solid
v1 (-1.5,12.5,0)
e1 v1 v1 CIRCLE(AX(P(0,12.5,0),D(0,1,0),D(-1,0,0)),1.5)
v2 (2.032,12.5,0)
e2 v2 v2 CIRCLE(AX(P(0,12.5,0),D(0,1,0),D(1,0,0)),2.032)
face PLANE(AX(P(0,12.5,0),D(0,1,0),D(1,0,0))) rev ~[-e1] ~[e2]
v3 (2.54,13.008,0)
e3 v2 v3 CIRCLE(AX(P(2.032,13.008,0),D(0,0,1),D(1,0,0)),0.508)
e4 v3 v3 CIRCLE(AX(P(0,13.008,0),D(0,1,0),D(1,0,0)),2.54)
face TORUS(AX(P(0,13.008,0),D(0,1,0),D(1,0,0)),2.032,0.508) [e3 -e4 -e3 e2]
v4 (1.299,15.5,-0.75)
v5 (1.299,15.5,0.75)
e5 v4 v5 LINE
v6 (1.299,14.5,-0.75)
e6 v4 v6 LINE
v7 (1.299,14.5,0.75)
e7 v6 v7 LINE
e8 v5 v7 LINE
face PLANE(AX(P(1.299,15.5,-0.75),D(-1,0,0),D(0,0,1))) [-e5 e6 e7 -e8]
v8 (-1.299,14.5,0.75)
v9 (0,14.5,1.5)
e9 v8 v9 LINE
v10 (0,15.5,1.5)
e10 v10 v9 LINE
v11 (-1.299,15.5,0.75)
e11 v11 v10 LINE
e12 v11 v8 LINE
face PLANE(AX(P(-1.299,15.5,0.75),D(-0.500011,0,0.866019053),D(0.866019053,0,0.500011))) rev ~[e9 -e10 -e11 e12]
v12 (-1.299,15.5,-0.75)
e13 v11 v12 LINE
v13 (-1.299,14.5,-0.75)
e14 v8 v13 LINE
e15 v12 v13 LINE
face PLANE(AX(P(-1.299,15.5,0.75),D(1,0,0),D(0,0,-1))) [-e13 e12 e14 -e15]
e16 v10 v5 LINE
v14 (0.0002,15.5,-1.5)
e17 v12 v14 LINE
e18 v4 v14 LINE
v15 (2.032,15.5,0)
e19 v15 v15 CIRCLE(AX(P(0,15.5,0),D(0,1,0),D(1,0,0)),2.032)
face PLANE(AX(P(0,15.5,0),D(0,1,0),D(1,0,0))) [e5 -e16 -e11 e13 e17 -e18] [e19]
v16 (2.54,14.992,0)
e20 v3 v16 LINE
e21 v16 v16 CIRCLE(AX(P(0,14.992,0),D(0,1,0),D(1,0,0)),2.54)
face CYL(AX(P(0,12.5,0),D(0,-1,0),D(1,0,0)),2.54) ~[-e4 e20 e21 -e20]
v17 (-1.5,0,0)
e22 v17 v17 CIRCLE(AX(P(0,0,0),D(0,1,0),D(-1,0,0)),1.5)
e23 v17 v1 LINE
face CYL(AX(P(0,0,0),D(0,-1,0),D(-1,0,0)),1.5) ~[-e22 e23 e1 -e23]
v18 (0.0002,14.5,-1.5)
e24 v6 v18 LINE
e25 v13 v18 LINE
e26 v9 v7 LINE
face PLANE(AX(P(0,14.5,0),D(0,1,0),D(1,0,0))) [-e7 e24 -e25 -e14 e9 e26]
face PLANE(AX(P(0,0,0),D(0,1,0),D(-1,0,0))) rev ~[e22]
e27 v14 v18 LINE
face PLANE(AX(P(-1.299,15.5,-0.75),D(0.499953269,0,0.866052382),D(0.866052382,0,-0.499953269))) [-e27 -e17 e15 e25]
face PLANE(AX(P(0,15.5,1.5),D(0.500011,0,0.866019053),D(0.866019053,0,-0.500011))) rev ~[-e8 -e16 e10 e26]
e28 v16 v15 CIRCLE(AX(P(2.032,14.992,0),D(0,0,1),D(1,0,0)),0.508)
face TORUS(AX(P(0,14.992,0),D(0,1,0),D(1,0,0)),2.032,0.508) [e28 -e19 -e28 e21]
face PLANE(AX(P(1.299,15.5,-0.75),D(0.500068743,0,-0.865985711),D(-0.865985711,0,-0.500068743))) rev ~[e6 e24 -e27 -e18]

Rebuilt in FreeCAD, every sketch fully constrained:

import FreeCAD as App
import Part
import Sketcher
from FreeCAD import Vector
Q = App.Units.Quantity


def edges_at(feature, points):
    """Names of the edges that pass closest to the given points."""
    edges = feature.Shape.Edges
    near = lambda p: min(range(len(edges)), key=lambda i: edges[i].distToShape(Part.Vertex(*p))[0])
    return sorted({f"Edge{near(p) + 1}" for p in points})

doc = App.newDocument("Part")
body = doc.addObject("PartDesign::Body", "Body")

sketch1 = doc.addObject("Sketcher::SketchObject", "Sketch")
body.addObject(sketch1)
sketch1.AttachmentSupport = (doc.XZ_Plane, [""])
sketch1.MapMode = "FlatFace"
sketch1.addGeometry(Part.Circle(Vector(0, 0, 0), Vector(0, 0, 1), 1.5), False)
sketch1.addConstraint([
    Sketcher.Constraint("Coincident", 0, 3, -1, 1),
    Sketcher.Constraint("Diameter", 0, Q("3 mm")),
])
pad1 = doc.addObject("PartDesign::Pad", "Pad")
body.addObject(pad1)
pad1.Profile = sketch1
pad1.Length = 12.5
pad1.Reversed = True

sketch2 = doc.addObject("Sketcher::SketchObject", "Sketch001")
body.addObject(sketch2)
sketch2.AttachmentSupport = (doc.XZ_Plane, [""])
sketch2.MapMode = "FlatFace"
sketch2.AttachmentOffset = App.Placement(Vector(0, 0, -12.5), App.Rotation())
sketch2.addGeometry(Part.Circle(Vector(0, 0, 0), Vector(0, 0, 1), 2.54), False)
sketch2.addConstraint([
    Sketcher.Constraint("Coincident", 0, 3, -1, 1),
    Sketcher.Constraint("Diameter", 0, Q("5.08 mm")),
])
pad2 = doc.addObject("PartDesign::Pad", "Pad001")
body.addObject(pad2)
pad2.Profile = sketch2
pad2.Length = 3
pad2.Reversed = True
doc.recompute()

fillet = doc.addObject("PartDesign::Fillet", "Fillet")
body.addObject(fillet)
fillet.Base = (pad2, edges_at(pad2, [(-2.54, 15.5, 0), (-2.54, 12.5, 0)]))
fillet.Radius = 0.508

sketch3 = doc.addObject("Sketcher::SketchObject", "Sketch002")
body.addObject(sketch3)
sketch3.AttachmentSupport = (doc.XZ_Plane, [""])
sketch3.MapMode = "FlatFace"
sketch3.AttachmentOffset = App.Placement(Vector(0, 0, -15.5), App.Rotation())
sketch3.addGeometry([
    Part.LineSegment(Vector(-1.299, -0.75, 0), Vector(-1.299, 0.75, 0)),
    Part.LineSegment(Vector(-1.299, 0.75, 0), Vector(0, 1.5, 0)),
    Part.LineSegment(Vector(0, 1.5, 0), Vector(1.299, 0.75, 0)),
    Part.LineSegment(Vector(1.299, 0.75, 0), Vector(1.299, -0.75, 0)),
    Part.LineSegment(Vector(1.299, -0.75, 0), Vector(0.0002, -1.5, 0)),
    Part.LineSegment(Vector(0.0002, -1.5, 0), Vector(-1.299, -0.75, 0)),
], False)
sketch3.addConstraint([
    Sketcher.Constraint("Coincident", 0, 2, 1, 1),
    Sketcher.Constraint("Coincident", 1, 2, 2, 1),
    Sketcher.Constraint("Coincident", 2, 2, 3, 1),
    Sketcher.Constraint("Coincident", 3, 2, 4, 1),
    Sketcher.Constraint("Coincident", 4, 2, 5, 1),
    Sketcher.Constraint("Coincident", 5, 2, 0, 1),
    Sketcher.Constraint("Vertical", 0),
    Sketcher.Constraint("Vertical", 3),
    Sketcher.Constraint("Symmetric", 0, 2, 3, 2, -1, 1),
    Sketcher.Constraint("Symmetric", 1, 2, 4, 2, -1, 1),
    Sketcher.Constraint("PointOnObject", 1, 2, -2),
    Sketcher.Constraint("Parallel", 2, 5),
    Sketcher.Constraint("Horizontal", 0, 2, 2, 2),
    Sketcher.Constraint("Angle", 1, Q("30.0007 deg")),
    Sketcher.Constraint("DistanceY", 0, 1, 0, 2, Q("1.5 mm")),
    Sketcher.Constraint("DistanceY", 4, 2, 1, 2, Q("3 mm")),
])
pocket1 = doc.addObject("PartDesign::Pocket", "Pocket")
body.addObject(pocket1)
pocket1.Profile = sketch3
pocket1.Length = 1
pocket1.Reversed = True

doc.recompute()
